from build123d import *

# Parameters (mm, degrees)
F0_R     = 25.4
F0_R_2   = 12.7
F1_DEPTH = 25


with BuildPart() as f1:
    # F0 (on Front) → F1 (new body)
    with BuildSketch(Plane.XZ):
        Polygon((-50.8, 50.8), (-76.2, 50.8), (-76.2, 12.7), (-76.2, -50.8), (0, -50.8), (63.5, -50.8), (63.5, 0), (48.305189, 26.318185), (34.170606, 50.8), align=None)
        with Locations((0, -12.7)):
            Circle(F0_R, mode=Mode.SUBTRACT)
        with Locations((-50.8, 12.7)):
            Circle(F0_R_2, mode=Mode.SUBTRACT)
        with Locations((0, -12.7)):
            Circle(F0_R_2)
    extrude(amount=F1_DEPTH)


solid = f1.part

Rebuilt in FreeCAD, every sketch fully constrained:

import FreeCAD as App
import Part
import Sketcher

V = App.Vector
Q = App.Units.Quantity


def add_polygon(sketch, points):
    """Adds a closed chain of lines whose ends are joined by coincident constraints."""
    first, n = sketch.GeometryCount, len(points)
    for a, b in zip(points, points[1:] + points[:1]):
        sketch.addGeometry(Part.LineSegment(App.Vector(*a, 0), App.Vector(*b, 0)), False)
    for i in range(n):
        sketch.addConstraint(Sketcher.Constraint("Coincident", first + i, 2, first + (i + 1) % n, 1))

doc = App.newDocument("Part")
body = doc.addObject("PartDesign::Body", "Body")
body.AllowCompound = True

# Sketch on XZ plane
sketch1 = body.newObject("Sketcher::SketchObject", "Sketch")
sketch1.AttachmentSupport = (doc.getObject("XZ_Plane"), [""])
sketch1.MapMode = "FlatFace"
add_polygon(sketch1, [(-76.2, 50.8), (-76.2, -50.8), (63.5, -50.8), (63.5, 0), (48.305189, 26.318185), (34.170606, 50.8)])  # lines 0-5
sketch1.addGeometry(Part.Circle(V(0, -12.7, 0), V(0, 0, 1), 25.4), False)  # 6
sketch1.addGeometry(Part.Circle(V(-50.8, 12.7, 0), V(0, 0, 1), 12.7), False)  # 7
sketch1.addGeometry(Part.Circle(V(0, -12.7, 0), V(0, 0, 1), 12.7), False)  # 8
sketch1.addConstraint([
    Sketcher.Constraint("Vertical", 0),
    Sketcher.Constraint("Horizontal", 1),
    Sketcher.Constraint("Vertical", 2),
    Sketcher.Constraint("Horizontal", 5),
    Sketcher.Constraint("Coincident", 8, 3, 6, 3),
    Sketcher.Constraint("Equal", 7, 8),
    Sketcher.Constraint("PointOnObject", 6, 3, -2),
    Sketcher.Constraint("PointOnObject", 2, 2, -1),
    Sketcher.Constraint("Parallel", 3, 4),
    Sketcher.Constraint("Diameter", 6, Q("2 in")),
    Sketcher.Constraint("Diameter", 7, Q("1 in")),
    Sketcher.Constraint("DistanceY", 0, 2, 0, 1, Q("4 in")),
    Sketcher.Constraint("DistanceY", 2, 1, 2, 2, Q("2 in")),
    Sketcher.Constraint("DistanceX", 1, 1, 1, 2, Q("5.5 in")),
    Sketcher.Constraint("DistanceX", 7, 3, -1, 1, Q("2 in")),
    Sketcher.Constraint("DistanceX", 0, 2, -1, 1, Q("3 in")),
    Sketcher.Constraint("Angle", 3, Q("120 deg")),
    Sketcher.Constraint("DistanceY", 6, 3, 7, 3, Q("1 in")),
    Sketcher.Constraint("DistanceY", 6, 3, -1, 1, Q("0.5 in")),
    Sketcher.Constraint("DistanceX", -1, 1, 3, 2, 48.305189),
])
pad1 = body.newObject("PartDesign::Pad", "Pad")
pad1.Profile = sketch1
pad1.Length = 25

doc.recompute()
